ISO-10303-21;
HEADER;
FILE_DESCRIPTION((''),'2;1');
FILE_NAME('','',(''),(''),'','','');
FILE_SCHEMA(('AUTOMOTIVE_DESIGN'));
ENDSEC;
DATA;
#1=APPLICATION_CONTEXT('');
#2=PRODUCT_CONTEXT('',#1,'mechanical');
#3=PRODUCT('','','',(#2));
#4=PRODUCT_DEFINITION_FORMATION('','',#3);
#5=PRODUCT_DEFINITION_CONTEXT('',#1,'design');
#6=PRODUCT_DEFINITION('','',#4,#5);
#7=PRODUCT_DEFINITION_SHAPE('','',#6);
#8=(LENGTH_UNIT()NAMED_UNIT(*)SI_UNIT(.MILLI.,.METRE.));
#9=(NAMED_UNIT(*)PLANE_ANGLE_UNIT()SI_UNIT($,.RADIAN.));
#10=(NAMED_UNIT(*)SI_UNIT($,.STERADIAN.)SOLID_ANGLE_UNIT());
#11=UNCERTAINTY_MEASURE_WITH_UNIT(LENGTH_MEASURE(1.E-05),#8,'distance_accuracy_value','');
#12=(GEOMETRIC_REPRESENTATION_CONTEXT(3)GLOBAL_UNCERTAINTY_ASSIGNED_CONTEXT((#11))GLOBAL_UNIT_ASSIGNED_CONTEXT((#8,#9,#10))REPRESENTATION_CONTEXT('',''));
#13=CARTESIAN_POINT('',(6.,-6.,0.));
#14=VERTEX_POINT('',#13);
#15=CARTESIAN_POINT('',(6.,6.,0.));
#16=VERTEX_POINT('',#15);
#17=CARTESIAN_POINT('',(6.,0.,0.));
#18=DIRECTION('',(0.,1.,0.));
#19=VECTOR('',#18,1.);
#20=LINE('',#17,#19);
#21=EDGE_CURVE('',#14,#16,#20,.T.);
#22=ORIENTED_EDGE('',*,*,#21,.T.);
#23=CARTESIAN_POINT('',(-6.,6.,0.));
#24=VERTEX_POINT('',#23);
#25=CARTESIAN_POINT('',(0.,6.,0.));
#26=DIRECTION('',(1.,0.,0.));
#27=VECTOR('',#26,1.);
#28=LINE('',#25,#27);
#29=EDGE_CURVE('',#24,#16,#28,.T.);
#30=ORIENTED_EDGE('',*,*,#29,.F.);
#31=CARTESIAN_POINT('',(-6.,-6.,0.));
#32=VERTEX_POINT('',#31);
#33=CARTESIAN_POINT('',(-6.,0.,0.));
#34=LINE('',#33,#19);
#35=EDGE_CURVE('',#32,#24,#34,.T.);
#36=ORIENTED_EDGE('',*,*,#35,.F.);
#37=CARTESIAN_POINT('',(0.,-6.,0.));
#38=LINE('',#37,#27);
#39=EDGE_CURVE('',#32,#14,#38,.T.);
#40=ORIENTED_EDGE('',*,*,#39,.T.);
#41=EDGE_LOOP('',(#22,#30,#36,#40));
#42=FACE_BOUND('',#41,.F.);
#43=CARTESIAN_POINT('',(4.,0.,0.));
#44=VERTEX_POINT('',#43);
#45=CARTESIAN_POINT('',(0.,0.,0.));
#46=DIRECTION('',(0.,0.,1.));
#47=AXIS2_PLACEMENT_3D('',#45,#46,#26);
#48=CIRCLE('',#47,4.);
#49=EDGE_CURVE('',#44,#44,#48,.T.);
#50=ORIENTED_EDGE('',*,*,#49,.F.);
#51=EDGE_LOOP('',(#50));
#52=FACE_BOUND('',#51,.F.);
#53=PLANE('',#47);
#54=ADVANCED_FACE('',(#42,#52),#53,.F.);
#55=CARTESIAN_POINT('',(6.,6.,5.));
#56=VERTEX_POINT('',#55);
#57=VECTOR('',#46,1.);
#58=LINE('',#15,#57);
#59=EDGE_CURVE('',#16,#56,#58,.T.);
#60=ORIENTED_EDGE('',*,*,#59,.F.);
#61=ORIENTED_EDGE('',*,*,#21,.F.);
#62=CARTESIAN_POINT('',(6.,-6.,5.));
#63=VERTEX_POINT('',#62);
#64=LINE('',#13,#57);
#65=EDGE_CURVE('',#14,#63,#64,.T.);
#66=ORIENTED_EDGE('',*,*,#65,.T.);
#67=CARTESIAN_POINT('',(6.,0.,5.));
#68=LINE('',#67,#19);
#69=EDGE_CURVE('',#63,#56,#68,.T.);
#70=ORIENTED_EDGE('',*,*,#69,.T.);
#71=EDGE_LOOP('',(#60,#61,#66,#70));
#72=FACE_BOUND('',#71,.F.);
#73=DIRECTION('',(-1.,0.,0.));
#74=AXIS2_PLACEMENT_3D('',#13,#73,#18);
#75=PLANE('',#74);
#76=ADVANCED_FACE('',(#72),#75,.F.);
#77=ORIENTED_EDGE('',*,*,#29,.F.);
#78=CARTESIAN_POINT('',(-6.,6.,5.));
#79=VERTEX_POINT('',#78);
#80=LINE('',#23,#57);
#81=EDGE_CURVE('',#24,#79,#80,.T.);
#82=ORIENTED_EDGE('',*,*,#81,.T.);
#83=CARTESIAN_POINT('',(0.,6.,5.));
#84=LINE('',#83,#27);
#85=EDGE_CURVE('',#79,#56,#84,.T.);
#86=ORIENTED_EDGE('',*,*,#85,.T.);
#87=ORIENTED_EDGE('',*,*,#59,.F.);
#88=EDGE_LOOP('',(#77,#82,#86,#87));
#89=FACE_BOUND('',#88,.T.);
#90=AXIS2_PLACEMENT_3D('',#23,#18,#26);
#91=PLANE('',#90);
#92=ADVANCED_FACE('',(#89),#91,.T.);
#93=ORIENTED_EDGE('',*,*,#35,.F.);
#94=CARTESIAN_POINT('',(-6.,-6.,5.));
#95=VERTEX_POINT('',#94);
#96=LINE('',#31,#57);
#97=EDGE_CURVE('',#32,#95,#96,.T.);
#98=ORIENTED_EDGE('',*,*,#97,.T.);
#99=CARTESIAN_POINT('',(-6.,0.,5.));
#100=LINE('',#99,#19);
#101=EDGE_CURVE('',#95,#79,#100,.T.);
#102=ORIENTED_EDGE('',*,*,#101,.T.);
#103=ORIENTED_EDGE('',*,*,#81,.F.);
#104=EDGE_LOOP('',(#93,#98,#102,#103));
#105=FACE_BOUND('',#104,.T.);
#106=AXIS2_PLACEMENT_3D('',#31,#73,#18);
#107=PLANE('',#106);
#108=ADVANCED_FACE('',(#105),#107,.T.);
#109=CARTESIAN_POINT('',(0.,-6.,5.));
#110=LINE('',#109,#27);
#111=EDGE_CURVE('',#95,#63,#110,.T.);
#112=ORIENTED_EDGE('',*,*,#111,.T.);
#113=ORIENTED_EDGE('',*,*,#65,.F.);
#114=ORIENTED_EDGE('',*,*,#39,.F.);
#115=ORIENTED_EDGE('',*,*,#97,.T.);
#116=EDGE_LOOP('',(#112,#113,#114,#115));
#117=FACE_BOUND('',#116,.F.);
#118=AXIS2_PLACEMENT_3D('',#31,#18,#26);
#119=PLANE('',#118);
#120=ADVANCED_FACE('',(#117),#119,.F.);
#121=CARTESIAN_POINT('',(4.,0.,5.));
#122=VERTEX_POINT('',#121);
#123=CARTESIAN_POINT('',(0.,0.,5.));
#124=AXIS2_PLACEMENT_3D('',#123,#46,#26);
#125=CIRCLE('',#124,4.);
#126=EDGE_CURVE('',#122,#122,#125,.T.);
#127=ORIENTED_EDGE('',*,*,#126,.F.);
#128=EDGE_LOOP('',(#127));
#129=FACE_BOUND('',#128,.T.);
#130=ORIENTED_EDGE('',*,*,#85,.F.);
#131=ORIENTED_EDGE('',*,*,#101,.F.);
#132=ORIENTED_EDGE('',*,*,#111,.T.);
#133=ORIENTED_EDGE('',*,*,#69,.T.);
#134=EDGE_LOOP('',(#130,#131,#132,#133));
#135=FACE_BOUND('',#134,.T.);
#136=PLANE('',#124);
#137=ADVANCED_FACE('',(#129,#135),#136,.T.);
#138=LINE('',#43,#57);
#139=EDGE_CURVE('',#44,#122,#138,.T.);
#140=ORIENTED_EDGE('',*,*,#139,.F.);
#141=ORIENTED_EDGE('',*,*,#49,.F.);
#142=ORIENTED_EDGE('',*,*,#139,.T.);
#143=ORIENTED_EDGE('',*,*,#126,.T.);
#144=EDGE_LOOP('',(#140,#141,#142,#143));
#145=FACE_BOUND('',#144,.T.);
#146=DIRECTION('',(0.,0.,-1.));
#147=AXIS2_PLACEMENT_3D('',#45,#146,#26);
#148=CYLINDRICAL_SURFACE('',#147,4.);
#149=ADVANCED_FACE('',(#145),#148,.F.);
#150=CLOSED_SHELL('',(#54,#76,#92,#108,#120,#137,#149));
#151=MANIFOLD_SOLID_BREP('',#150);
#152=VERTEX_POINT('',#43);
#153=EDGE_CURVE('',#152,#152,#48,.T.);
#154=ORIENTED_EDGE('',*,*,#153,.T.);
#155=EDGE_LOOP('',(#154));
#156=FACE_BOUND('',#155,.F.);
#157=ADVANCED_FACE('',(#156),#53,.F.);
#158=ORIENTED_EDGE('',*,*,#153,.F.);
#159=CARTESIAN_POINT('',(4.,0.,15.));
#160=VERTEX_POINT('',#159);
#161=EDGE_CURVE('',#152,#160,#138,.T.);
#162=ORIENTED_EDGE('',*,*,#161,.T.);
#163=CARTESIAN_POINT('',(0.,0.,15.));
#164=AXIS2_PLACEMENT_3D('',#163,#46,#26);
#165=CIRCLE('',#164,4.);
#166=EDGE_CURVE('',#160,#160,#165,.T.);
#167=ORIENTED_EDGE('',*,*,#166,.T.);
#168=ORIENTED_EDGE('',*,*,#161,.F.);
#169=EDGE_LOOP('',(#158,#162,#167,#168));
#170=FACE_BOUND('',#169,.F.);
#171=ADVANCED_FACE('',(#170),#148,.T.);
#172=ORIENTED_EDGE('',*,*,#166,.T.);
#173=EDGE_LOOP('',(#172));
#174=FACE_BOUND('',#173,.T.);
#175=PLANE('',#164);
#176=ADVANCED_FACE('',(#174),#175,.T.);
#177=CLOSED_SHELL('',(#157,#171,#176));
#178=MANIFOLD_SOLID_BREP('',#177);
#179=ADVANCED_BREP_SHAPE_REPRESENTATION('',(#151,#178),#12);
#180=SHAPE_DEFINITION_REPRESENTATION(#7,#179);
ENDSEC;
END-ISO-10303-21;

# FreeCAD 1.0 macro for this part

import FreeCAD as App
import Part
import Sketcher

V = App.Vector


def add_polygon(sketch, points):
    """Adds a closed chain of lines whose ends are joined by coincident constraints."""
    first, n = sketch.GeometryCount, len(points)
    for a, b in zip(points, points[1:] + points[:1]):
        sketch.addGeometry(Part.LineSegment(App.Vector(*a, 0), App.Vector(*b, 0)), False)
    for i in range(n):
        sketch.addConstraint(Sketcher.Constraint("Coincident", first + i, 2, first + (i + 1) % n, 1))

doc = App.newDocument("Part")
body = doc.addObject("PartDesign::Body", "Body")

# Sketch on XY plane
sketch1 = doc.addObject("Sketcher::SketchObject", "Sketch")
body.addObject(sketch1)
sketch1.AttachmentSupport = (doc.XY_Plane, [""])
sketch1.MapMode = "FlatFace"
add_polygon(sketch1, [(-6, 6), (-6, -6), (6, -6), (6, 6)])  # lines 0-3
sketch1.addGeometry(Part.Circle(V(0, 0, 0), V(0, 0, 1), 4), False)  # 4
sketch1.addConstraint([
    Sketcher.Constraint("Vertical", 0),
    Sketcher.Constraint("Horizontal", 1),
    Sketcher.Constraint("Vertical", 2),
    Sketcher.Constraint("Horizontal", 3),
    Sketcher.Constraint("Coincident", 4, 3, -1, 1),
    Sketcher.Constraint("Symmetric", 0, 2, 2, 2, -1, 1),
    Sketcher.Constraint("Equal", 3, 0),
    Sketcher.Constraint("Diameter", 4, 8.0),
    Sketcher.Constraint("DistanceX", 1, 1, 1, 2, 12.0),
])
pad1 = doc.addObject("PartDesign::Pad", "Pad")
body.addObject(pad1)
pad1.Profile = sketch1
pad1.Length = 5
body2 = doc.addObject("PartDesign::Body", "Body001")

# Sketch on XY plane
sketch2 = doc.addObject("Sketcher::SketchObject", "Sketch001")
body2.addObject(sketch2)
sketch2.AttachmentSupport = (doc.getObject("XY_Plane001"), [""])
sketch2.MapMode = "FlatFace"
sketch2.addGeometry(Part.Circle(V(0, 0, 0), V(0, 0, 1), 4), False)
sketch2.addConstraint([
    Sketcher.Constraint("Coincident", 0, 3, -1, 1),
    Sketcher.Constraint("Diameter", 0, 8.0),
])
pad2 = doc.addObject("PartDesign::Pad", "Pad001")
body2.addObject(pad2)
pad2.Profile = sketch2
pad2.Length = 15

doc.recompute()
